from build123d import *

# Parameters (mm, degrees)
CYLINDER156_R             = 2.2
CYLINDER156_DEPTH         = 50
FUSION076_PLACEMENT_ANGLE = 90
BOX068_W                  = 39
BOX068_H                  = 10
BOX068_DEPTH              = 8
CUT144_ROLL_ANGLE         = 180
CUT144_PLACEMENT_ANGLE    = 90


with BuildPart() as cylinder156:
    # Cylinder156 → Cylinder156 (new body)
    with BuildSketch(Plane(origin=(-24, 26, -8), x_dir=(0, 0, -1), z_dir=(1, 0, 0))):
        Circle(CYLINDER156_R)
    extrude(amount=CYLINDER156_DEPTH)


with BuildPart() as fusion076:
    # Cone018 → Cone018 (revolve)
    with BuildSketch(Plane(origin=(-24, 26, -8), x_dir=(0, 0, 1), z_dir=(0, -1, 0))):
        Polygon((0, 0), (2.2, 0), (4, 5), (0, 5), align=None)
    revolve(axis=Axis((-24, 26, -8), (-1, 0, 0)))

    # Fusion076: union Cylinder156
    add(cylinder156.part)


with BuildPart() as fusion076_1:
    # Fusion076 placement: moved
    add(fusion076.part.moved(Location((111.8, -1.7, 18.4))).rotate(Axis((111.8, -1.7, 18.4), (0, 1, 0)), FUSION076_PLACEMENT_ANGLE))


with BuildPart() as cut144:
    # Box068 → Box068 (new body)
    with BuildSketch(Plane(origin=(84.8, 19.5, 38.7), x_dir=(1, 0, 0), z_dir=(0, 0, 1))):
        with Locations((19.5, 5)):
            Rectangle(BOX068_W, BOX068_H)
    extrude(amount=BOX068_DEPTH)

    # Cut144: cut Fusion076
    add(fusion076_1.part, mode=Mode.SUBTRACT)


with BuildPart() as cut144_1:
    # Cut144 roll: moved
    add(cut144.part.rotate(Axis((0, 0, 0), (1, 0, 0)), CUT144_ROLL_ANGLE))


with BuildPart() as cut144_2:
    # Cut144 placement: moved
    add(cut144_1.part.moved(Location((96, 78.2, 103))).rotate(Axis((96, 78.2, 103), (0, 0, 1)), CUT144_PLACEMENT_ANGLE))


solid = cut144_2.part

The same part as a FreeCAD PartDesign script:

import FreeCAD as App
import Part
import Sketcher
from FreeCAD import Vector

doc = App.newDocument("Part")
params = doc.addObject("Spreadsheet::Sheet", "Params")
for row, (alias, value) in enumerate([
    ("sketch1_diameter", "4.4 mm"),
    ("pad1_length", "50 mm"),
    ("sketch2_width", "5 mm"),
    ("sketch2_height", "4 mm"),
    ("sketch2_height2", "2.2 mm"),
    ("revolution_angle", "360 deg"),
    ("sketch3_width", "39 mm"),
    ("sketch3_height", "10 mm"),
    ("pad2_length", "8 mm"),
], start=1):
    params.set(f"A{row}", alias)
    params.set(f"B{row}", "=" + value)
    params.setAlias(f"B{row}", alias)

body = doc.addObject("PartDesign::Body", "Body")

sketch1 = body.newObject("Sketcher::SketchObject", "Sketch")
sketch1.AttachmentSupport = (doc.getObject("YZ_Plane"), [""])
sketch1.MapMode = "FlatFace"
sketch1.AttachmentOffset = App.Placement(Vector(0, 0, -24), App.Rotation())
sketch1.addGeometry(Part.Circle(Vector(26, -8, 0), Vector(0, 0, 1), 2.2), False)
sketch1.addConstraint(Sketcher.Constraint("Diameter", 0, 4.4))
sketch1.addConstraint(Sketcher.Constraint("DistanceX", -1, 1, 0, 3, 26.0))
sketch1.addConstraint(Sketcher.Constraint("DistanceY", 0, 3, -1, 1, 8.0))
sketch1.setExpression("Constraints[0]", "Params.sketch1_diameter")
pad1 = body.newObject("PartDesign::Pad", "Pad")
pad1.Profile = sketch1
pad1.setExpression("Length", "Params.pad1_length")
body2 = doc.addObject("PartDesign::Body", "Body001")

sketch2 = body2.newObject("Sketcher::SketchObject", "Sketch001")
sketch2.AttachmentSupport = (doc.getObject("XZ_Plane001"), [""])
sketch2.MapMode = "FlatFace"
sketch2.AttachmentOffset = App.Placement(Vector(0, 0, -26), App.Rotation())
sketch2.addGeometry(Part.LineSegment(Vector(-24, -8, 0), Vector(-24, -5.8, 0)), False)
sketch2.addGeometry(Part.LineSegment(Vector(-24, -5.8, 0), Vector(-29, -4, 0)), False)
sketch2.addGeometry(Part.LineSegment(Vector(-29, -4, 0), Vector(-29, -8, 0)), False)
sketch2.addGeometry(Part.LineSegment(Vector(-29, -8, 0), Vector(-24, -8, 0)), False)
sketch2.addGeometry(Part.LineSegment(Vector(-24, -8, 0), Vector(-29, -8, 0)), True)
sketch2.addConstraint(Sketcher.Constraint("Coincident", 0, 2, 1, 1))
sketch2.addConstraint(Sketcher.Constraint("Coincident", 1, 2, 2, 1))
sketch2.addConstraint(Sketcher.Constraint("Coincident", 2, 2, 3, 1))
sketch2.addConstraint(Sketcher.Constraint("Coincident", 3, 2, 0, 1))
sketch2.addConstraint(Sketcher.Constraint("Vertical", 0))
sketch2.addConstraint(Sketcher.Constraint("Vertical", 2))
sketch2.addConstraint(Sketcher.Constraint("Horizontal", 3))
sketch2.addConstraint(Sketcher.Constraint("Horizontal", 4))
sketch2.addConstraint(Sketcher.Constraint("Coincident", 4, 1, 3, 2))
sketch2.addConstraint(Sketcher.Constraint("Vertical", 1, 2, 4, 2))
sketch2.addConstraint(Sketcher.Constraint("DistanceX", 3, 1, 3, 2, 5.0))
sketch2.addConstraint(Sketcher.Constraint("DistanceY", 2, 2, 2, 1, 4.0))
sketch2.addConstraint(Sketcher.Constraint("DistanceY", 0, 1, 0, 2, 2.2))
sketch2.addConstraint(Sketcher.Constraint("DistanceX", 0, 2, -1, 1, 24.0))
sketch2.addConstraint(Sketcher.Constraint("DistanceY", 1, 2, -1, 1, 4.0))
sketch2.setExpression("Constraints[10]", "Params.sketch2_width")
sketch2.setExpression("Constraints[11]", "Params.sketch2_height")
sketch2.setExpression("Constraints[12]", "Params.sketch2_height2")
revolution = body2.newObject("PartDesign::Revolution", "Revolution")
revolution.Profile = sketch2
revolution.ReferenceAxis = (sketch2, ["Axis0"])
revolution.setExpression("Angle", "Params.revolution_angle")
doc.recompute()

boolean = body2.newObject("PartDesign::Boolean", "Boolean")
boolean.Type = "Fuse"
boolean.addObjects([body])
body3 = doc.addObject("PartDesign::Body", "Body002")
doc.recompute()

body2.Placement = App.Placement(Vector(111.8, -1.7, 18.4), App.Rotation(Vector(0, 1, 0), 90))
boolean2 = body3.newObject("PartDesign::Boolean", "Boolean001")
boolean2.Type = "Fuse"
boolean2.addObjects([body2])
body4 = doc.addObject("PartDesign::Body", "Body003")

sketch3 = body4.newObject("Sketcher::SketchObject", "Sketch002")
sketch3.AttachmentSupport = (doc.getObject("XY_Plane003"), [""])
sketch3.MapMode = "FlatFace"
sketch3.AttachmentOffset = App.Placement(Vector(0, 0, 38.7), App.Rotation())
sketch3.addGeometry(Part.LineSegment(Vector(85, 30, 0), Vector(85, 20, 0)), False)
sketch3.addGeometry(Part.LineSegment(Vector(85, 20, 0), Vector(124, 20, 0)), False)
sketch3.addGeometry(Part.LineSegment(Vector(124, 20, 0), Vector(124, 30, 0)), False)
sketch3.addGeometry(Part.LineSegment(Vector(124, 30, 0), Vector(85, 30, 0)), False)
sketch3.addConstraint(Sketcher.Constraint("Coincident", 0, 2, 1, 1))
sketch3.addConstraint(Sketcher.Constraint("Coincident", 1, 2, 2, 1))
sketch3.addConstraint(Sketcher.Constraint("Coincident", 2, 2, 3, 1))
sketch3.addConstraint(Sketcher.Constraint("Coincident", 3, 2, 0, 1))
sketch3.addConstraint(Sketcher.Constraint("Vertical", 0))
sketch3.addConstraint(Sketcher.Constraint("Horizontal", 1))
sketch3.addConstraint(Sketcher.Constraint("Vertical", 2))
sketch3.addConstraint(Sketcher.Constraint("Horizontal", 3))
sketch3.addConstraint(Sketcher.Constraint("DistanceX", 1, 1, 1, 2, 39.0))
sketch3.addConstraint(Sketcher.Constraint("DistanceY", 0, 2, 0, 1, 10.0))
sketch3.addConstraint(Sketcher.Constraint("DistanceX", -1, 1, 0, 2, 84.8))
sketch3.addConstraint(Sketcher.Constraint("DistanceY", -1, 1, 0, 2, 19.5))
sketch3.setExpression("Constraints[8]", "Params.sketch3_width")
sketch3.setExpression("Constraints[9]", "Params.sketch3_height")
pad2 = body4.newObject("PartDesign::Pad", "Pad001")
pad2.Profile = sketch3
pad2.setExpression("Length", "Params.pad2_length")
doc.recompute()

boolean3 = body4.newObject("PartDesign::Boolean", "Boolean002")
boolean3.Type = "Cut"
boolean3.addObjects([body3])
body5 = doc.addObject("PartDesign::Body", "Body004")
doc.recompute()

body4.Placement = App.Placement(Vector(0, 0, 0), App.Rotation(Vector(1, 0, 0), 180))
boolean4 = body5.newObject("PartDesign::Boolean", "Boolean003")
boolean4.Type = "Fuse"
boolean4.addObjects([body4])
body6 = doc.addObject("PartDesign::Body", "Body005")
doc.recompute()

body5.Placement = App.Placement(Vector(96, 78.2, 103), App.Rotation(Vector(0, 0, 1), 90))
boolean5 = body6.newObject("PartDesign::Boolean", "Boolean004")
boolean5.Type = "Fuse"
boolean5.addObjects([body5])

doc.recompute()
